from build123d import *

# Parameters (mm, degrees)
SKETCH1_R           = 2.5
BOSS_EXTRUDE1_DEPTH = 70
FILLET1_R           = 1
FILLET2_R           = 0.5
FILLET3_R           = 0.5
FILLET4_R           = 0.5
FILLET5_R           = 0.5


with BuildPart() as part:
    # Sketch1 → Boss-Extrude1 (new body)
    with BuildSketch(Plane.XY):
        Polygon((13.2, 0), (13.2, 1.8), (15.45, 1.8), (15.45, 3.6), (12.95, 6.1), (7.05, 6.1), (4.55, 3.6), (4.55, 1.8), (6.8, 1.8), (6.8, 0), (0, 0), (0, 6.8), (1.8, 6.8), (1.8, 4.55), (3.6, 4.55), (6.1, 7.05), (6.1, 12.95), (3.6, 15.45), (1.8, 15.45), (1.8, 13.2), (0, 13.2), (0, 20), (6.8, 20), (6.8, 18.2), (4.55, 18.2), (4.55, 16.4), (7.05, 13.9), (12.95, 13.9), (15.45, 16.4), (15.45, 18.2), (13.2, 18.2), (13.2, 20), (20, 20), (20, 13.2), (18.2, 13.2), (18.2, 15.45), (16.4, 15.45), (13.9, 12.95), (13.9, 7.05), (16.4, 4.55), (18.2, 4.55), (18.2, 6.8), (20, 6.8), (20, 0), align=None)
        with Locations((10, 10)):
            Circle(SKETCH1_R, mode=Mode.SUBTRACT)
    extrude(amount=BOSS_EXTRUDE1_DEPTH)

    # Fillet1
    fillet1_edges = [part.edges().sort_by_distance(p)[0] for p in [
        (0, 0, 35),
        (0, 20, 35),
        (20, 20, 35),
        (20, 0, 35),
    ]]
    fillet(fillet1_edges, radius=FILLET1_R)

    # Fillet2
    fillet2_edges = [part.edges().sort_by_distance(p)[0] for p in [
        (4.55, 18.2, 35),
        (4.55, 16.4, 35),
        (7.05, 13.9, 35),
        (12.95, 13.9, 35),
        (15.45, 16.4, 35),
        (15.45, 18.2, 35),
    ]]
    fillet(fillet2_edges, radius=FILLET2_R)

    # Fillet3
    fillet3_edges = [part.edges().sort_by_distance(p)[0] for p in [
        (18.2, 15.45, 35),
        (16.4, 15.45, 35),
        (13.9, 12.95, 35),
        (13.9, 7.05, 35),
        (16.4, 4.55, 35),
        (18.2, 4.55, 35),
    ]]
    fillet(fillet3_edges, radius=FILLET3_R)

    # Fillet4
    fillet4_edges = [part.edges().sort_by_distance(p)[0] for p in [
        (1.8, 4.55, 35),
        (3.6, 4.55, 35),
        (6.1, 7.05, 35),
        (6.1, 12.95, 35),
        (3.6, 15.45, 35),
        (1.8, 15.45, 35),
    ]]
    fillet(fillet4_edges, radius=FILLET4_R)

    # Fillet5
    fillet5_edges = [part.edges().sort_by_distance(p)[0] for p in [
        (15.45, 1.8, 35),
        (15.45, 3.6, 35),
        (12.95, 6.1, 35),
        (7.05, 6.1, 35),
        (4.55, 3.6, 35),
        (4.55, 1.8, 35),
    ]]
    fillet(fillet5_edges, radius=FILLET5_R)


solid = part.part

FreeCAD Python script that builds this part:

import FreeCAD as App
import Part
import Sketcher
from FreeCAD import Vector


def edges_at(feature, points):
    """Names of the edges that pass closest to the given points."""
    edges = feature.Shape.Edges
    near = lambda p: min(range(len(edges)), key=lambda i: edges[i].distToShape(Part.Vertex(*p))[0])
    return sorted({f"Edge{near(p) + 1}" for p in points})


def add_polygon(sketch, points):
    """Adds a closed chain of lines whose ends are joined by coincident constraints."""
    first, n = sketch.GeometryCount, len(points)
    for a, b in zip(points, points[1:] + points[:1]):
        sketch.addGeometry(Part.LineSegment(App.Vector(*a, 0), App.Vector(*b, 0)), False)
    for i in range(n):
        sketch.addConstraint(Sketcher.Constraint("Coincident", first + i, 2, first + (i + 1) % n, 1))

doc = App.newDocument("Part")
body = doc.addObject("PartDesign::Body", "Body")

# Sketch on XY plane
sketch1 = body.newObject("Sketcher::SketchObject", "Sketch")
sketch1.AttachmentSupport = (doc.getObject("XY_Plane"), [""])
sketch1.MapMode = "FlatFace"
add_polygon(sketch1, [(13.2, 1.8), (13.2, 0), (20, 0), (20, 6.8), (18.2, 6.8), (18.2, 4.5), (16.4, 4.5), (13.9, 7), (13.9, 12.9), (16.4, 15.4), (18.2, 15.4), (18.2, 13.2), (20, 13.2), (20, 20), (13.2, 20), (13.2, 18.2), (15.4, 18.2), (15.4, 16.4), (12.9, 13.9), (7, 13.9), (4.5, 16.4), (4.5, 18.2), (6.8, 18.2), (6.8, 20), (0, 20), (0, 13.2), (1.8, 13.2), (1.8, 15.4), (3.6, 15.4), (6.1, 12.9), (6.1, 7), (3.6, 4.5), (1.8, 4.5), (1.8, 6.8), (0, 6.8), (0, 0), (6.8, 0), (6.8, 1.8), (4.5, 1.8), (4.5, 3.6), (7, 6.1), (12.9, 6.1), (15.4, 3.6), (15.4, 1.8)])  # lines 0-43
sketch1.addGeometry(Part.Circle(Vector(10, 10, 0), Vector(0, 0, 1), 2.5), False)  # 44
sketch1.addConstraint([
    Sketcher.Constraint("Vertical", 0),
    Sketcher.Constraint("Horizontal", 1),
    Sketcher.Constraint("Vertical", 2),
    Sketcher.Constraint("Horizontal", 3),
    Sketcher.Constraint("Vertical", 4),
    Sketcher.Constraint("Horizontal", 5),
    Sketcher.Constraint("Vertical", 7),
    Sketcher.Constraint("Horizontal", 9),
    Sketcher.Constraint("Vertical", 10),
    Sketcher.Constraint("Horizontal", 11),
    Sketcher.Constraint("Vertical", 12),
    Sketcher.Constraint("Horizontal", 13),
    Sketcher.Constraint("Vertical", 14),
    Sketcher.Constraint("Horizontal", 15),
    Sketcher.Constraint("Vertical", 16),
    Sketcher.Constraint("Horizontal", 18),
    Sketcher.Constraint("Vertical", 20),
    Sketcher.Constraint("Horizontal", 21),
    Sketcher.Constraint("Vertical", 22),
    Sketcher.Constraint("Horizontal", 23),
    Sketcher.Constraint("Vertical", 24),
    Sketcher.Constraint("Horizontal", 25),
    Sketcher.Constraint("Vertical", 26),
    Sketcher.Constraint("Horizontal", 27),
    Sketcher.Constraint("Vertical", 29),
    Sketcher.Constraint("Horizontal", 31),
    Sketcher.Constraint("Vertical", 32),
    Sketcher.Constraint("Horizontal", 33),
    Sketcher.Constraint("Vertical", 34),
    Sketcher.Constraint("Horizontal", 35),
    Sketcher.Constraint("Vertical", 36),
    Sketcher.Constraint("Horizontal", 37),
    Sketcher.Constraint("Vertical", 38),
    Sketcher.Constraint("Horizontal", 40),
    Sketcher.Constraint("Vertical", 42),
    Sketcher.Constraint("Horizontal", 43),
    Sketcher.Constraint("Coincident", 34, 2, -1, 1),
    Sketcher.Constraint("PointOnObject", 0, 2, -1),
    Sketcher.Constraint("PointOnObject", 23, 2, -2),
    Sketcher.Constraint("Perpendicular", 6, 8),
    Sketcher.Constraint("Parallel", 8, 17),
    Sketcher.Constraint("Perpendicular", 17, 19),
    Sketcher.Constraint("Parallel", 19, 28),
    Sketcher.Constraint("Perpendicular", 28, 30),
    Sketcher.Constraint("Parallel", 30, 39),
    Sketcher.Constraint("Perpendicular", 39, 41),
    Sketcher.Constraint("Horizontal", 16, 2, 19, 2),
    Sketcher.Constraint("Horizontal", 15, 2, 20, 2),
    Sketcher.Constraint("Horizontal", 13, 2, 22, 2),
    Sketcher.Constraint("Horizontal", 11, 2, 24, 2),
    Sketcher.Constraint("Horizontal", 9, 2, 26, 2),
    Sketcher.Constraint("Horizontal", 7, 2, 28, 2),
    Sketcher.Constraint("Horizontal", 6, 2, 29, 2),
    Sketcher.Constraint("Horizontal", 5, 2, 30, 2),
    Sketcher.Constraint("Horizontal", 3, 2, 32, 2),
    Sketcher.Constraint("Horizontal", 38, 2, 41, 2),
    Sketcher.Constraint("Horizontal", 37, 2, 42, 2),
    Sketcher.Constraint("Vertical", 5, 2, 8, 2),
    Sketcher.Constraint("Vertical", 4, 2, 9, 2),
    Sketcher.Constraint("Vertical", 2, 2, 11, 2),
    Sketcher.Constraint("Vertical", 0, 2, 13, 2),
    Sketcher.Constraint("Vertical", 27, 2, 30, 2),
    Sketcher.Constraint("Vertical", 26, 2, 31, 2),
    Sketcher.Constraint("Vertical", 22, 2, 35, 2),
    Sketcher.Constraint("Vertical", 20, 2, 37, 2),
    Sketcher.Constraint("Vertical", 18, 2, 39, 2),
    Sketcher.Constraint("Vertical", 17, 2, 40, 2),
    Sketcher.Constraint("Equal", 3, 5),
    Sketcher.Constraint("Equal", 15, 21),
    Sketcher.Constraint("Equal", 13, 23),
    Sketcher.Constraint("Equal", 11, 25),
    Sketcher.Constraint("Equal", 25, 27),
    Sketcher.Constraint("Equal", 33, 0),
    Sketcher.Constraint("Equal", 35, 2),
    Sketcher.Constraint("Equal", 43, 4),
    Sketcher.Constraint("Equal", 40, 7),
    Sketcher.Constraint("Equal", 4, 10),
    Sketcher.Constraint("Equal", 2, 12),
    Sketcher.Constraint("Equal", 0, 14),
    Sketcher.Constraint("Equal", 14, 16),
    Sketcher.Constraint("Equal", 36, 38),
    Sketcher.Constraint("Equal", 8, 17),
    Sketcher.Constraint("Diameter", 44, 5.0),
    Sketcher.Constraint("DistanceX", 1, 1, 1, 2, 6.8),
    Sketcher.Constraint("DistanceX", 3, 2, 3, 1, 1.8),
    Sketcher.Constraint("DistanceX", 18, 2, 18, 1, 5.9),
    Sketcher.Constraint("DistanceX", -1, 1, 44, 3, 10.0),
    Sketcher.Constraint("DistanceY", -1, 1, 44, 3, 10.0),
    Sketcher.Constraint("DistanceX", -1, 1, 1, 2, 20.0),
    Sketcher.Constraint("DistanceX", 15, 1, 15, 2, 2.25),
])
pad1 = body.newObject("PartDesign::Pad", "Pad")
pad1.Profile = sketch1
pad1.Length = 70
doc.recompute()

fillet = body.newObject("PartDesign::Fillet", "Fillet")
fillet.Base = (pad1, edges_at(pad1, [
    (0, 0, 35),
    (0, 20, 35),
    (20, 20, 35),
    (20, 0, 35),
]))
fillet.Radius = 1
doc.recompute()

fillet2 = body.newObject("PartDesign::Fillet", "Fillet001")
fillet2.Base = (fillet, edges_at(fillet, [
    (4.55, 18.2, 35),
    (4.55, 16.4, 35),
    (7.05, 13.9, 35),
    (12.95, 13.9, 35),
    (15.45, 16.4, 35),
    (15.45, 18.2, 35),
]))
fillet2.Radius = 0.5
doc.recompute()

fillet3 = body.newObject("PartDesign::Fillet", "Fillet002")
fillet3.Base = (fillet2, edges_at(fillet2, [
    (18.2, 15.45, 35),
    (16.4, 15.45, 35),
    (13.9, 12.95, 35),
    (13.9, 7.05, 35),
    (16.4, 4.55, 35),
    (18.2, 4.55, 35),
]))
fillet3.Radius = 0.5
doc.recompute()

fillet4 = body.newObject("PartDesign::Fillet", "Fillet003")
fillet4.Base = (fillet3, edges_at(fillet3, [
    (1.8, 4.55, 35),
    (3.6, 4.55, 35),
    (6.1, 7.05, 35),
    (6.1, 12.95, 35),
    (3.6, 15.45, 35),
    (1.8, 15.45, 35),
]))
fillet4.Radius = 0.5
doc.recompute()

fillet5 = body.newObject("PartDesign::Fillet", "Fillet004")
fillet5.Base = (fillet4, edges_at(fillet4, [
    (15.45, 1.8, 35),
    (15.45, 3.6, 35),
    (12.95, 6.1, 35),
    (7.05, 6.1, 35),
    (4.55, 3.6, 35),
    (4.55, 1.8, 35),
]))
fillet5.Radius = 0.5

doc.recompute()
